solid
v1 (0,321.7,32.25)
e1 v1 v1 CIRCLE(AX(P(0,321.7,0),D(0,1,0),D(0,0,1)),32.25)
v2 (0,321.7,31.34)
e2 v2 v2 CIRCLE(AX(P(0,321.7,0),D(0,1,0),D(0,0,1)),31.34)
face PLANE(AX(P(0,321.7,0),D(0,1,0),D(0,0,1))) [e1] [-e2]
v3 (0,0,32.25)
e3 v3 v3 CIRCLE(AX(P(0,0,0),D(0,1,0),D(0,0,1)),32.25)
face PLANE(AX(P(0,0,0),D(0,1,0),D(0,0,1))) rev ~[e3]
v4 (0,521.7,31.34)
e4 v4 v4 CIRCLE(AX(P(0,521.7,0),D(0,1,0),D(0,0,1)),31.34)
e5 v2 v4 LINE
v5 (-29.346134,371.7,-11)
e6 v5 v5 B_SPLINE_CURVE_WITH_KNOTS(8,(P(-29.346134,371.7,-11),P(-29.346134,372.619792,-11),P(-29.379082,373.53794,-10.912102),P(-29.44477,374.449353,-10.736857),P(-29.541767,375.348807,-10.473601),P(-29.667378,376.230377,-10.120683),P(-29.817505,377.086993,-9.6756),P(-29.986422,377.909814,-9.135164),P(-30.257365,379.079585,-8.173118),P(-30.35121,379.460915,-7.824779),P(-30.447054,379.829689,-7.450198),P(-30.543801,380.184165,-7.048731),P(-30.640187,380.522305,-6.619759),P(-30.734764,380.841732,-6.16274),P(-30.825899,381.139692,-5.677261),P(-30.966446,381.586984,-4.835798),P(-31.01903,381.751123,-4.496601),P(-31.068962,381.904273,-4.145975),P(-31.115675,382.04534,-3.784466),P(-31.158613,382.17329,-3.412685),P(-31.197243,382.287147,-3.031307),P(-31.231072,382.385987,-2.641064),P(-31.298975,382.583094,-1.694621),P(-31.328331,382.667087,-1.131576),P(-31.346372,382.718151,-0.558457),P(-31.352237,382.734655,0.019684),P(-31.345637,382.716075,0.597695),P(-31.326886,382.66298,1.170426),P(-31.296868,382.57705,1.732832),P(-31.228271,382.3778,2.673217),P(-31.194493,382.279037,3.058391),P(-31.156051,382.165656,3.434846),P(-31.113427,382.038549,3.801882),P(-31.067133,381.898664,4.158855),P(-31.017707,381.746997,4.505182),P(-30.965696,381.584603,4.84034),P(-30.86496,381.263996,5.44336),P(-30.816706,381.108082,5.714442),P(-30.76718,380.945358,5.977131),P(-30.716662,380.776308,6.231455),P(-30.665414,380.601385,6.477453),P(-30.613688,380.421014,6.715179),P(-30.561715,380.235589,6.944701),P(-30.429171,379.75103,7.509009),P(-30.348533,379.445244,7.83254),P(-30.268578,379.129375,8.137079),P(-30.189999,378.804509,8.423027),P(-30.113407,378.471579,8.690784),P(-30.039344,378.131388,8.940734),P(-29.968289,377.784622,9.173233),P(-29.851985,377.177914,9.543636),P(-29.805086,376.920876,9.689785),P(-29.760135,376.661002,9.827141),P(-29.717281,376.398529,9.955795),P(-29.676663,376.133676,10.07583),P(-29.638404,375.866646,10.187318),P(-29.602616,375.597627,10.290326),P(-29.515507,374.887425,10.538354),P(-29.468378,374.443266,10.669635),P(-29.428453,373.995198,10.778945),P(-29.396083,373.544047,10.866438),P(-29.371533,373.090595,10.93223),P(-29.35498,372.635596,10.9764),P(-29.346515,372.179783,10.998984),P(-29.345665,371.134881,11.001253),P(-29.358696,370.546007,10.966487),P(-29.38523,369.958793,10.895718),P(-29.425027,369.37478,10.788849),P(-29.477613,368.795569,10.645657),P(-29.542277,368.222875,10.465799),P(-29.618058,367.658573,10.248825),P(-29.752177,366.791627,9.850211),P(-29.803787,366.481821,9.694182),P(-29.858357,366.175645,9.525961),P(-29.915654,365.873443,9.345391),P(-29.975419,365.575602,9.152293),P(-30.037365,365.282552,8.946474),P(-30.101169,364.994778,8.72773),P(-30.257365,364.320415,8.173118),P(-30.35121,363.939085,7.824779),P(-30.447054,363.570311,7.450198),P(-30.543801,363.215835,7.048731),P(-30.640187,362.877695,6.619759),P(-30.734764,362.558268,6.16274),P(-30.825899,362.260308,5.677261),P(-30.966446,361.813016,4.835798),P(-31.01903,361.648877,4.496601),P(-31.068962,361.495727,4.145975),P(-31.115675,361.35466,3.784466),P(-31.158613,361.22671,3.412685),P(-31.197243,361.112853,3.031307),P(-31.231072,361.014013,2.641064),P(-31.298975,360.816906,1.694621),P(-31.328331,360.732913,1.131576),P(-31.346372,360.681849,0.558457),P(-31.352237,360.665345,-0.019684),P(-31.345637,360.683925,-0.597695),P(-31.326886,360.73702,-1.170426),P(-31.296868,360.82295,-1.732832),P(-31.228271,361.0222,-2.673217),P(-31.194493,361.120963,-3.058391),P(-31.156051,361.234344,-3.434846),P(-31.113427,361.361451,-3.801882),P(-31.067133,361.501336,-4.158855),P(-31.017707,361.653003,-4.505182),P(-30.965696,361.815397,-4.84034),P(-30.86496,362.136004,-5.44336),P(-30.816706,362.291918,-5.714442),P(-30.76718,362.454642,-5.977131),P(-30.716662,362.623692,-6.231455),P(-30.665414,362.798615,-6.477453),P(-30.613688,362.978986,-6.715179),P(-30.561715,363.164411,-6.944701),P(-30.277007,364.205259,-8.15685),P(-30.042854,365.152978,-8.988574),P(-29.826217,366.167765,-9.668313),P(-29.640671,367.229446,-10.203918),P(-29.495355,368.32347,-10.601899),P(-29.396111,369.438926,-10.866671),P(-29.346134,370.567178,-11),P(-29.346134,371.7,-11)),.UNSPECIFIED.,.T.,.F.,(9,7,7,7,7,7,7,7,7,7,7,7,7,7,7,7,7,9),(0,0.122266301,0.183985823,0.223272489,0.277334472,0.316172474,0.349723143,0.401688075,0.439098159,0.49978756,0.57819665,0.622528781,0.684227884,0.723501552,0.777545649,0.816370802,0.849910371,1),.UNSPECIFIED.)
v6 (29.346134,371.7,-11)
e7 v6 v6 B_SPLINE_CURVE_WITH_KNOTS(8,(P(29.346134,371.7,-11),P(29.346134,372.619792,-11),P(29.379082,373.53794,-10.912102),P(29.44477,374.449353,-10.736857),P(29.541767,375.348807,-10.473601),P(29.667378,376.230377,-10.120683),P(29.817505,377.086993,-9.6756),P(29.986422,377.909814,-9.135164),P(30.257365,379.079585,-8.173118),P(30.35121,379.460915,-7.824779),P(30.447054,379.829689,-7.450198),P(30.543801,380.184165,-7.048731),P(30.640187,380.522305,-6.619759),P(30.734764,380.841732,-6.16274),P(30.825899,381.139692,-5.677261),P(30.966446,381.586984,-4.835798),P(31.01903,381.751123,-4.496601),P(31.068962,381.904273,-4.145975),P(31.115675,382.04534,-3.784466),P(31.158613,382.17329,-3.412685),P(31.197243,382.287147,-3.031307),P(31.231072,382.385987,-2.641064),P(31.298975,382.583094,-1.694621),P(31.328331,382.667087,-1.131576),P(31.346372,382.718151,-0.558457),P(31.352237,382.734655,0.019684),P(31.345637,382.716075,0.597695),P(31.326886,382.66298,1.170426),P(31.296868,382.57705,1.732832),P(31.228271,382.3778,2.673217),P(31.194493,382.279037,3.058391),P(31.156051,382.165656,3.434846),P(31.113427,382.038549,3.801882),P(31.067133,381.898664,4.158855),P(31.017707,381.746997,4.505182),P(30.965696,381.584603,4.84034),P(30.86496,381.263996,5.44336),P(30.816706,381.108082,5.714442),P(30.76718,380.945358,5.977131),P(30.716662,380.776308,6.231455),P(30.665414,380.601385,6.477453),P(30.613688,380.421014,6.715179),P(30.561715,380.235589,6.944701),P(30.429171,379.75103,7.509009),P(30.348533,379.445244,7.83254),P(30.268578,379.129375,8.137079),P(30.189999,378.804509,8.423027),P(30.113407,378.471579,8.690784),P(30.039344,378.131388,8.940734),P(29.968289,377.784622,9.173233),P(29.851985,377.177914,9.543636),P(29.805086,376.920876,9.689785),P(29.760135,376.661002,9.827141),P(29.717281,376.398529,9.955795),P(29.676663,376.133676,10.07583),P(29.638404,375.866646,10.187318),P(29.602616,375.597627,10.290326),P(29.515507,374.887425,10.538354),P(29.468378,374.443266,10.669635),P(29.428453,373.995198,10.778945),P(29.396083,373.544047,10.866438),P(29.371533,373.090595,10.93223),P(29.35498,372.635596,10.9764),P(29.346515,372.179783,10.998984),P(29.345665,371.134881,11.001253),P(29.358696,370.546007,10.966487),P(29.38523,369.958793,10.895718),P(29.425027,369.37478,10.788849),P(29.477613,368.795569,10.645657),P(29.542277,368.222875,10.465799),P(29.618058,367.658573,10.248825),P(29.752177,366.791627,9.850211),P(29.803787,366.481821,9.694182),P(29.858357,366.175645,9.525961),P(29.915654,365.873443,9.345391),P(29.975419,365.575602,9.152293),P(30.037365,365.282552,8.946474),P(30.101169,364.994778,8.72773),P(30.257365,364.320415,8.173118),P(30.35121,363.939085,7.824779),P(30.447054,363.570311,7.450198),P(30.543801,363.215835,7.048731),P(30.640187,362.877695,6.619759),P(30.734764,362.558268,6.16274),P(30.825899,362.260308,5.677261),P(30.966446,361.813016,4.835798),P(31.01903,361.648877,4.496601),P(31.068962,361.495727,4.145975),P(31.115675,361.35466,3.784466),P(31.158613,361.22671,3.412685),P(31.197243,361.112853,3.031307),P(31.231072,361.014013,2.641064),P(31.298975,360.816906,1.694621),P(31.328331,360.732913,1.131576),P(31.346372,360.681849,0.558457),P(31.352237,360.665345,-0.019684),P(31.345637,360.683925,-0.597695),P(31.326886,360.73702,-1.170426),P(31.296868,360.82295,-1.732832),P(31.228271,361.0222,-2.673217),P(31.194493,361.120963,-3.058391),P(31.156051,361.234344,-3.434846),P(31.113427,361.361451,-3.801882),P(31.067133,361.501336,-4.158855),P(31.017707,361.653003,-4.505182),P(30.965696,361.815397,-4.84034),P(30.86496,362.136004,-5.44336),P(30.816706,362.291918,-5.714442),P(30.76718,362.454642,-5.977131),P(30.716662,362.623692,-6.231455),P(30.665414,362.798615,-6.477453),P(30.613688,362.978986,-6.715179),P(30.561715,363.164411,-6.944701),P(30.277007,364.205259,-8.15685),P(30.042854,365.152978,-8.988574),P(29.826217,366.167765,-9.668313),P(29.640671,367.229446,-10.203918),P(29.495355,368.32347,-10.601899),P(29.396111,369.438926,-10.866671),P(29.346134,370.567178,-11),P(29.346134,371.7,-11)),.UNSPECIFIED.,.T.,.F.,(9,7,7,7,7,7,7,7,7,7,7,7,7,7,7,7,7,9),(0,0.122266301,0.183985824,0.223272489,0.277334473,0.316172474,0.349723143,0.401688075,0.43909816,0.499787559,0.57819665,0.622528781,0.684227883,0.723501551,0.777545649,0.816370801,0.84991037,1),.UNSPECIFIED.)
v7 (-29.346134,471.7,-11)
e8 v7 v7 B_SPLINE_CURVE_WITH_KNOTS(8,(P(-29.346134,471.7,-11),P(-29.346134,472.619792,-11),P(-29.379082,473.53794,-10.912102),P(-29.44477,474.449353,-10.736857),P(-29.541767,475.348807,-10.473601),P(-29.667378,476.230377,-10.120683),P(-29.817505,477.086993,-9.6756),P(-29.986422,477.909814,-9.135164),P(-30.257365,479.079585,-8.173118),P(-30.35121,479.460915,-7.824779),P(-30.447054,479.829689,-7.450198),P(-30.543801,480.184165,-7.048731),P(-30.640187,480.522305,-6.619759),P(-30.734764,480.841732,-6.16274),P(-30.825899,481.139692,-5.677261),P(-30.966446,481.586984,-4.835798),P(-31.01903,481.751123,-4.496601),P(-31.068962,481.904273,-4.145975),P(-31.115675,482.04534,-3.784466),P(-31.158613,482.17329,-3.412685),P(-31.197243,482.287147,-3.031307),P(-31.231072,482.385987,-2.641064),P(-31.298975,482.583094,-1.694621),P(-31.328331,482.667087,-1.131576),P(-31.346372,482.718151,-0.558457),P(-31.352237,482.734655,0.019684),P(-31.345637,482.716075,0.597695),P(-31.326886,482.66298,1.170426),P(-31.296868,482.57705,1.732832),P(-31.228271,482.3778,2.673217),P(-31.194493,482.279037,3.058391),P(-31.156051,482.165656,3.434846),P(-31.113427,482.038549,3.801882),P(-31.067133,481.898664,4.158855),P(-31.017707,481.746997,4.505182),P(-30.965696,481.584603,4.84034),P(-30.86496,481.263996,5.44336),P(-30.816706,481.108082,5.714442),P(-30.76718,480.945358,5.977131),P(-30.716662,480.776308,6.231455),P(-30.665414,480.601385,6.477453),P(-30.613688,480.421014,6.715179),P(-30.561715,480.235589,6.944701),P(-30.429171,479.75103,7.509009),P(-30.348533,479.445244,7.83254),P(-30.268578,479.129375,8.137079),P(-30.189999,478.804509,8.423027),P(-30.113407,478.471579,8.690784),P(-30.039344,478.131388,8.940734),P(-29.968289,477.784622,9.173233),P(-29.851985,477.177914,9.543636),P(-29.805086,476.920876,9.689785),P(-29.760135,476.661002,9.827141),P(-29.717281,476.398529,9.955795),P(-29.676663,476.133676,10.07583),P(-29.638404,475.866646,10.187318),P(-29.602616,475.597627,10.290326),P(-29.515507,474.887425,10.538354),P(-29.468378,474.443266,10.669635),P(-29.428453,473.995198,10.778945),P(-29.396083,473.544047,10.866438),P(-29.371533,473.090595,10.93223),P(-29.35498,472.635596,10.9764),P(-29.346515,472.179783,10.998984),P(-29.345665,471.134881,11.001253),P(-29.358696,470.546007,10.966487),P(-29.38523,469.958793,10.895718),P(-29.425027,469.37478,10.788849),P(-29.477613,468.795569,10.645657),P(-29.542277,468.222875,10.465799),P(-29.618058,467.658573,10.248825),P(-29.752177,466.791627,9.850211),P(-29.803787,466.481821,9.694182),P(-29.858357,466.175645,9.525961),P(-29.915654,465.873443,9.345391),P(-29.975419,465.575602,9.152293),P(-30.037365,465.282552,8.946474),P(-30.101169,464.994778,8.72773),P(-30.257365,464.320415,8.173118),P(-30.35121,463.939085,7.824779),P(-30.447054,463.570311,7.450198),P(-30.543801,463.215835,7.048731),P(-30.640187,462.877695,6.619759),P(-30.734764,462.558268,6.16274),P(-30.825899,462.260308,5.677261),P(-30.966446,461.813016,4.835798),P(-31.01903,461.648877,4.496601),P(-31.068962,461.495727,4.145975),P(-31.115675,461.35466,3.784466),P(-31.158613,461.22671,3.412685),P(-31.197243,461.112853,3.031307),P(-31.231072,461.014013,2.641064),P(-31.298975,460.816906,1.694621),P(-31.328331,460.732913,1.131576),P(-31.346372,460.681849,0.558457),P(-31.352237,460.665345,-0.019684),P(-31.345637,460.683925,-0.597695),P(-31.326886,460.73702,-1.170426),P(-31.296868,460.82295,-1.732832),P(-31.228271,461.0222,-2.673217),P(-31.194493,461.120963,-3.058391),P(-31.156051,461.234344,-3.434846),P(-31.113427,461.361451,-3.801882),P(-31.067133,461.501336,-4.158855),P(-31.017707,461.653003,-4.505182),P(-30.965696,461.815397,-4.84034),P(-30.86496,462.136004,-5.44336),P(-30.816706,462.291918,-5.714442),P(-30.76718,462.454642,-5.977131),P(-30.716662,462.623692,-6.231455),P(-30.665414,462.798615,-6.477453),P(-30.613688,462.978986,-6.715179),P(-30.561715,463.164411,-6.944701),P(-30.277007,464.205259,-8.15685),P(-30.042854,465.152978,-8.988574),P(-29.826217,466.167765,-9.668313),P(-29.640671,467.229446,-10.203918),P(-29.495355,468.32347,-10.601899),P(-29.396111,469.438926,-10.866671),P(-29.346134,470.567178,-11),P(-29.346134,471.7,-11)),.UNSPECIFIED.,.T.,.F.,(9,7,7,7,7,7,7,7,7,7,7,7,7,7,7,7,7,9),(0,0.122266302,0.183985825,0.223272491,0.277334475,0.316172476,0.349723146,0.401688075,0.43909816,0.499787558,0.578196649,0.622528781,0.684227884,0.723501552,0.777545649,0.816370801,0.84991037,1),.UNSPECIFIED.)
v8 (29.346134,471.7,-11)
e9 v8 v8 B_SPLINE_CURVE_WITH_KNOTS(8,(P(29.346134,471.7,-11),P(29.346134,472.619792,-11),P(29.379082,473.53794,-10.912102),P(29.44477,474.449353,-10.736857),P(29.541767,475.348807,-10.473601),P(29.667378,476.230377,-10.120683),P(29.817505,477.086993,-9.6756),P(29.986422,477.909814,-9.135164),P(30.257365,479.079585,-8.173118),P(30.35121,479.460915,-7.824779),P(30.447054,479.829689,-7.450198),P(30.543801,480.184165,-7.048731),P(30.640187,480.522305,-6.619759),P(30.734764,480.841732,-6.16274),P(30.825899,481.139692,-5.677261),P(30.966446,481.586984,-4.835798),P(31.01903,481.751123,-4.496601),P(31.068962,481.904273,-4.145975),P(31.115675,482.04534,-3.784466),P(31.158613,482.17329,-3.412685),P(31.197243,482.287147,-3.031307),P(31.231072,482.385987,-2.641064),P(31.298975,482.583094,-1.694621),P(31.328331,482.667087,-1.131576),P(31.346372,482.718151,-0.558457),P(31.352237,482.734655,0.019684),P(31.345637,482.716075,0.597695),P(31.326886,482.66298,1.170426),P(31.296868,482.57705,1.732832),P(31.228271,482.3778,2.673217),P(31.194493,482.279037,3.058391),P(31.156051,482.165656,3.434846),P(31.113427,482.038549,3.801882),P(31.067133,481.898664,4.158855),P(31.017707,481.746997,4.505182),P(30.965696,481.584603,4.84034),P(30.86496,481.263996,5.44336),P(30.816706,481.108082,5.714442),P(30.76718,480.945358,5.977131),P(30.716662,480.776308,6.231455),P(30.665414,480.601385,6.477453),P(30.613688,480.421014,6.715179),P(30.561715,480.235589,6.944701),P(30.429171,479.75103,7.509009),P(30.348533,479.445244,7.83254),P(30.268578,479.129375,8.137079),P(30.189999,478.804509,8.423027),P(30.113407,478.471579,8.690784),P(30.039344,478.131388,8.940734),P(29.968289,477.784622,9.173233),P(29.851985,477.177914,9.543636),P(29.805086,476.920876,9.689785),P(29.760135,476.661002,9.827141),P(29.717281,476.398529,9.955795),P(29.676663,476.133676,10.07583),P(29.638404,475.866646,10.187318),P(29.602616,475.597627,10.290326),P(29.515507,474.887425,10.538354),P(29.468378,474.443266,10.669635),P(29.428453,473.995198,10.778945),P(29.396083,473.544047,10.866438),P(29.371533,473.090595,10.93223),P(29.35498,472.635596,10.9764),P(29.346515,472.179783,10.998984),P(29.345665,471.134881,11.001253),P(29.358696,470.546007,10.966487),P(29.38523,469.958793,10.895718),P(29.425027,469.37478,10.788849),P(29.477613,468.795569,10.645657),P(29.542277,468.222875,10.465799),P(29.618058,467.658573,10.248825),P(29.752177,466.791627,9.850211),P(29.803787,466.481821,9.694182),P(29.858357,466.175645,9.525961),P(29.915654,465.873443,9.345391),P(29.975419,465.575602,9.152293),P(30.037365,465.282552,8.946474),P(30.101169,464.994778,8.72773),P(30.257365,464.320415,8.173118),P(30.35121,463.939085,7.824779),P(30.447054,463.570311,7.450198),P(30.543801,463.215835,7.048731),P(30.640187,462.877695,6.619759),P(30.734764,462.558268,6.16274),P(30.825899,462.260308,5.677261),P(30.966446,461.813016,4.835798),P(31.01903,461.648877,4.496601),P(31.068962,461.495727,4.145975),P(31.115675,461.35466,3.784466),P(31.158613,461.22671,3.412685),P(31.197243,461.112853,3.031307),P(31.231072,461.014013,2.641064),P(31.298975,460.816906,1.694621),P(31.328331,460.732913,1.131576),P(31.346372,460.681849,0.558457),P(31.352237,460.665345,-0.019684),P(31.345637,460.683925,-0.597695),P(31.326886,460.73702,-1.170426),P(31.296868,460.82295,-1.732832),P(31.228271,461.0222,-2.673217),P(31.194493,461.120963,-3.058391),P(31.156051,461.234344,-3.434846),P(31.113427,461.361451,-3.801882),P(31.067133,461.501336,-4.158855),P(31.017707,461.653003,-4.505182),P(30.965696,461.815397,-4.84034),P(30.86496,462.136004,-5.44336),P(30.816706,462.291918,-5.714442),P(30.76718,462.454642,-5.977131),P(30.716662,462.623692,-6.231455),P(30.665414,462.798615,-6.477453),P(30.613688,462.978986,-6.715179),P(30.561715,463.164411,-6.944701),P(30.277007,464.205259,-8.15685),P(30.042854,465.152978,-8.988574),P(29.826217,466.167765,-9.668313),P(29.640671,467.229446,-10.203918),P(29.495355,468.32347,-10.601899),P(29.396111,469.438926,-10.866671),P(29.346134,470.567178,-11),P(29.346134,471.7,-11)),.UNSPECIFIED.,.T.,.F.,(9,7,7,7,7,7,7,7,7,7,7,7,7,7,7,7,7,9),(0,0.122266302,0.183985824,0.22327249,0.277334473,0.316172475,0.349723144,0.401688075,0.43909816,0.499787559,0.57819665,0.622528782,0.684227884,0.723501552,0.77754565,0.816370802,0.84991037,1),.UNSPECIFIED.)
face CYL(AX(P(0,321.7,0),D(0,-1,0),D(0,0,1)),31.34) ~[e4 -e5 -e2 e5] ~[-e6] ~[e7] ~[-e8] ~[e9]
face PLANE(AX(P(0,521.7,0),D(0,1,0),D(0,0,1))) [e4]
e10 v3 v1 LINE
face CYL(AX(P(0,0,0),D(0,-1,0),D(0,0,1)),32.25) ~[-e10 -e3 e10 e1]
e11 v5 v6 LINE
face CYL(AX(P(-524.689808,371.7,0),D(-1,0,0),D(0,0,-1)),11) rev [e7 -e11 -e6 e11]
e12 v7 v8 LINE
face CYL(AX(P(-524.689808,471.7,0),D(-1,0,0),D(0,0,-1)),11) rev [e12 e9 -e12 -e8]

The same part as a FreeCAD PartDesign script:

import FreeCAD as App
import Part
import Sketcher
from FreeCAD import Vector
Q = App.Units.Quantity

doc = App.newDocument("Part")
params = doc.addObject("Spreadsheet::Sheet", "Params")
for row, (alias, value) in enumerate([
    ("sketch1_diameter", "64.5 mm"),
    ("pad1_length", "321.7 mm"),
    ("sketch2_diameter", "62.68 mm"),
    ("pad2_length", "200 mm"),
    ("sketch3_diameter", "22 mm"),
], start=1):
    params.set(f"A{row}", alias)
    params.set(f"B{row}", "=" + value)
    params.setAlias(f"B{row}", alias)

body = doc.addObject("PartDesign::Body", "Body")

# Sketch on XZ plane
sketch1 = doc.addObject("Sketcher::SketchObject", "Sketch")
body.addObject(sketch1)
sketch1.AttachmentSupport = (doc.XZ_Plane, [""])
sketch1.MapMode = "FlatFace"
sketch1.addGeometry(Part.Circle(Vector(0, 0, 0), Vector(0, 0, 1), 32), False)
sketch1.addConstraint([
    Sketcher.Constraint("Coincident", 0, 3, -1, 1),
    Sketcher.Constraint("Diameter", 0, Q("64.5 mm")),
])
sketch1.setExpression("Constraints[1]", "Params.sketch1_diameter")
pad1 = doc.addObject("PartDesign::Pad", "Pad")
body.addObject(pad1)
pad1.Profile = sketch1
pad1.setExpression("Length", "Params.pad1_length")
pad1.Reversed = True

# Sketch on XZ plane
sketch2 = doc.addObject("Sketcher::SketchObject", "Sketch001")
body.addObject(sketch2)
sketch2.AttachmentSupport = (doc.XZ_Plane, [""])
sketch2.MapMode = "FlatFace"
sketch2.AttachmentOffset = App.Placement(Vector(0, 0, -321.7), App.Rotation())
sketch2.addGeometry(Part.Circle(Vector(0, 0, 0), Vector(0, 0, 1), 31), False)
sketch2.addConstraint([
    Sketcher.Constraint("Coincident", 0, 3, -1, 1),
    Sketcher.Constraint("Diameter", 0, Q("62.68 mm")),
])
sketch2.setExpression("Constraints[1]", "Params.sketch2_diameter")
pad2 = doc.addObject("PartDesign::Pad", "Pad001")
body.addObject(pad2)
pad2.Profile = sketch2
pad2.setExpression("Length", "Params.pad2_length")
pad2.Reversed = True

# Sketch on YZ plane
sketch3 = doc.addObject("Sketcher::SketchObject", "Sketch002")
body.addObject(sketch3)
sketch3.AttachmentSupport = (doc.YZ_Plane, [""])
sketch3.MapMode = "FlatFace"
sketch3.addGeometry([
    Part.Circle(Vector(472, 0, 0), Vector(0, 0, 1), 11),
    Part.Circle(Vector(372, 0, 0), Vector(0, 0, 1), 11),
], False)
sketch3.addConstraint([
    Sketcher.Constraint("Equal", 0, 1),
    Sketcher.Constraint("PointOnObject", 0, 3, -1),
    Sketcher.Constraint("PointOnObject", 1, 3, -1),
    Sketcher.Constraint("Diameter", 0, Q("22 mm")),
    Sketcher.Constraint("DistanceX", 1, 3, 0, 3, Q("100 mm")),
    Sketcher.Constraint("DistanceX", -1, 1, 0, 3, Q("471.7 mm")),
])
sketch3.setExpression("Constraints[3]", "Params.sketch3_diameter")
pocket1 = doc.addObject("PartDesign::Pocket", "Pocket")
body.addObject(pocket1)
pocket1.Profile = sketch3
pocket1.Type = "ThroughAll"
pocket1.Midplane = True

doc.recompute()
